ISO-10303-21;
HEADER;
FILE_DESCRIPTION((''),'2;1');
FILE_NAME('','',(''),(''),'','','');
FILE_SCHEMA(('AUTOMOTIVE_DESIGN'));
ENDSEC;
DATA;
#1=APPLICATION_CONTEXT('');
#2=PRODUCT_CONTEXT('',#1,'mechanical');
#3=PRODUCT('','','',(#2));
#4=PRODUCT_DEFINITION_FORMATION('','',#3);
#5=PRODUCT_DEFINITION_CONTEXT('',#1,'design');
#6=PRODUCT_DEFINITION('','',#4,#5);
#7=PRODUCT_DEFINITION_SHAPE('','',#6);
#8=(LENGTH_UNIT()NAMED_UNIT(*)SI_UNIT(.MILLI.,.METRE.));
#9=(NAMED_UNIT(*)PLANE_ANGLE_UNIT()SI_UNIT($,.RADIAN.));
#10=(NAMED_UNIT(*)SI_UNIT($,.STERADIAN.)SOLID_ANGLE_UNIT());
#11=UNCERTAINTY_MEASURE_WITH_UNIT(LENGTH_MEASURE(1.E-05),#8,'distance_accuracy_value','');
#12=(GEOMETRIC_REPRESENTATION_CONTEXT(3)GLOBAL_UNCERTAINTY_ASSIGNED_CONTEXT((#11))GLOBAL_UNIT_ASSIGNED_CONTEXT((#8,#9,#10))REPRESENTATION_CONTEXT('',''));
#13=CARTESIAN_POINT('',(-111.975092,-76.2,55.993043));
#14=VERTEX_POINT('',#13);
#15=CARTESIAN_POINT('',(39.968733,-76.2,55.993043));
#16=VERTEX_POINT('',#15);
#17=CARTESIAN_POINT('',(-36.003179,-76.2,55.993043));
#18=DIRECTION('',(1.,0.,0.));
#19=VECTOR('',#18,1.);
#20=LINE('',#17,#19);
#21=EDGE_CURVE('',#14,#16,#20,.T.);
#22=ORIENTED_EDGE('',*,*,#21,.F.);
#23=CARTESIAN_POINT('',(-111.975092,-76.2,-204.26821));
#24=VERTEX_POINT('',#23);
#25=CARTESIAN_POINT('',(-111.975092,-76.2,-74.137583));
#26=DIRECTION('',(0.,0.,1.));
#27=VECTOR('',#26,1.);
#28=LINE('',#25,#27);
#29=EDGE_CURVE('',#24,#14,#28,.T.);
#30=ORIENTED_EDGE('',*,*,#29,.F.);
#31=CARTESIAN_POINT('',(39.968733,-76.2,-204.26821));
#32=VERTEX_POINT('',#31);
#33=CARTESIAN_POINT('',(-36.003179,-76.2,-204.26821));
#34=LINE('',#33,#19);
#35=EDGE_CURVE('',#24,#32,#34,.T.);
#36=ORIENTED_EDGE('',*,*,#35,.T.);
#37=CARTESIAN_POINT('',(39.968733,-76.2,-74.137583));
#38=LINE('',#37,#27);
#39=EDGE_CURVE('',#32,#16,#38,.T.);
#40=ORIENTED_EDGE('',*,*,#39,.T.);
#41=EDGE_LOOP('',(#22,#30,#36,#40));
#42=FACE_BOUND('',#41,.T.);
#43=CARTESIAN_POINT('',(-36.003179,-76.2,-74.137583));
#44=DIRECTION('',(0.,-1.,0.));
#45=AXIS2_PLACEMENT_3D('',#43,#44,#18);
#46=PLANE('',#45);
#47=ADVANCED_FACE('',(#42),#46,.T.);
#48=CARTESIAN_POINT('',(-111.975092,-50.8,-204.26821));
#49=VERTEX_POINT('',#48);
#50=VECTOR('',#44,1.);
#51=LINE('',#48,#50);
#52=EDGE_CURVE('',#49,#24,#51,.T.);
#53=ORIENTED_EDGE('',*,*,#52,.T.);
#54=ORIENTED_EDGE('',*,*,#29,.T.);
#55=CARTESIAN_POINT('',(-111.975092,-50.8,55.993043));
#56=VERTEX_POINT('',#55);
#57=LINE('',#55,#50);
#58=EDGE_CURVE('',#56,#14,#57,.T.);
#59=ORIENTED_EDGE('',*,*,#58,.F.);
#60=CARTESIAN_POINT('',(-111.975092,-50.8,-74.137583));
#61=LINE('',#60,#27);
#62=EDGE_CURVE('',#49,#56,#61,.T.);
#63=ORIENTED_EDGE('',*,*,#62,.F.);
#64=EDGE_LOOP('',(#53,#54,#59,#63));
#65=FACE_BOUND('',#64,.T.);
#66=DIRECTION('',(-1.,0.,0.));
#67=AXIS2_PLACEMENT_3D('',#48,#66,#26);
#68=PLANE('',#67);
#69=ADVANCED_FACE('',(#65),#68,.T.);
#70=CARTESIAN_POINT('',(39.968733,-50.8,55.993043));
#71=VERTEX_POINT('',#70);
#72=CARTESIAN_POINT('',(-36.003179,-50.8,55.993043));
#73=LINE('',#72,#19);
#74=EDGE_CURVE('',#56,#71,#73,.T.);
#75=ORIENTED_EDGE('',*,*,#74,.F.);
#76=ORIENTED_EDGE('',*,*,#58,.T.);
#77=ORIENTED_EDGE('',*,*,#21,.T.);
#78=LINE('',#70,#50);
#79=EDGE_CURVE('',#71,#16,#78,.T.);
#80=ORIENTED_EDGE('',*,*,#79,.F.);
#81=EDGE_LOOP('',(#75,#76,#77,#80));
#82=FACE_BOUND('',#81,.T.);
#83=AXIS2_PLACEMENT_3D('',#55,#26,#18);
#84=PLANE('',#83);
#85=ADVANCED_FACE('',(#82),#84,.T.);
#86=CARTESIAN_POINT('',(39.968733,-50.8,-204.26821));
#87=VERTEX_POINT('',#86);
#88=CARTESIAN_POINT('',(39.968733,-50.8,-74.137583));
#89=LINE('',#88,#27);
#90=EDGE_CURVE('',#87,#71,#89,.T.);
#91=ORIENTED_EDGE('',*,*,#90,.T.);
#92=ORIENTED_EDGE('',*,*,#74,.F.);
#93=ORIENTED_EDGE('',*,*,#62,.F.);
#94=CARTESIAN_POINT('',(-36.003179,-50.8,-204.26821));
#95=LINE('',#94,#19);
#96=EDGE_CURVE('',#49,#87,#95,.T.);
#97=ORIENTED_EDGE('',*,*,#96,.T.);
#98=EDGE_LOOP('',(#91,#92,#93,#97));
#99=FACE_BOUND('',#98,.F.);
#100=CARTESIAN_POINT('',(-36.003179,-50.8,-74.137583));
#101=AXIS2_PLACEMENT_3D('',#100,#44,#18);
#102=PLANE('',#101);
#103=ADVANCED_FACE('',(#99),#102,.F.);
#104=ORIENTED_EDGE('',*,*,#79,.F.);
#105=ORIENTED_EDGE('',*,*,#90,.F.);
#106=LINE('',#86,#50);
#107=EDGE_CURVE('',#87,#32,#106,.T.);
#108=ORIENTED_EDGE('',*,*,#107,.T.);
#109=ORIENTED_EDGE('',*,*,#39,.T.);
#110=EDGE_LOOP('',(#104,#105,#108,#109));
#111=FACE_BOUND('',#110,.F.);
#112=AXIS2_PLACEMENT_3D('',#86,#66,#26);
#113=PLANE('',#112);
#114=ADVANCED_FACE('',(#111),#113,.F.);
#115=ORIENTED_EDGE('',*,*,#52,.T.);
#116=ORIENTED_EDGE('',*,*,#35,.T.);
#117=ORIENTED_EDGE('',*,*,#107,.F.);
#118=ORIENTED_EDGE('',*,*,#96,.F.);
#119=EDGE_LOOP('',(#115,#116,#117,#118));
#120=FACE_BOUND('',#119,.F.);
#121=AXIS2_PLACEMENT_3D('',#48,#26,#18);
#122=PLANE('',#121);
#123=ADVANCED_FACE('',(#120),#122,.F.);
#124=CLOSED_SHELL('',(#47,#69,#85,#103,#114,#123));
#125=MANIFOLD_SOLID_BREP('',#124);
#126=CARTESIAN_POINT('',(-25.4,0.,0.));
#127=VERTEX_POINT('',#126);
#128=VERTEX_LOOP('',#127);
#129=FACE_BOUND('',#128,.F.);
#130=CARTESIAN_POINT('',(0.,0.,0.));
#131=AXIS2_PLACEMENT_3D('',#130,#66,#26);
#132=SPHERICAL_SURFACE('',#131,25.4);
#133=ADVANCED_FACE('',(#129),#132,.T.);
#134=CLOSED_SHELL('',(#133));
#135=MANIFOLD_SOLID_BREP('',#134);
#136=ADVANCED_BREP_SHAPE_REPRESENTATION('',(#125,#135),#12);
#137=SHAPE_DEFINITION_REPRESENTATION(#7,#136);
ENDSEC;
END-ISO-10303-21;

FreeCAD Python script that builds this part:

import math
import FreeCAD as App
import Part
import Sketcher

V = App.Vector
Q = App.Units.Quantity


def add_polygon(sketch, points):
    """Adds a closed chain of lines whose ends are joined by coincident constraints."""
    first, n = sketch.GeometryCount, len(points)
    for a, b in zip(points, points[1:] + points[:1]):
        sketch.addGeometry(Part.LineSegment(App.Vector(*a, 0), App.Vector(*b, 0)), False)
    for i in range(n):
        sketch.addConstraint(Sketcher.Constraint("Coincident", first + i, 2, first + (i + 1) % n, 1))

doc = App.newDocument("Part")
body = doc.addObject("PartDesign::Body", "Body")

sketch1 = body.newObject("Sketcher::SketchObject", "Sketch")
sketch1.AttachmentSupport = (doc.getObject("XZ_Plane"), [""])
sketch1.MapMode = "FlatFace"
sketch1.addGeometry(Part.LineSegment(V(-25, 0, 0), V(25, 0, 0)), False)
sketch1.addGeometry(Part.ArcOfCircle(Part.Circle(V(0, 0, 0), V(0, 0, 1), 25), math.radians(0), math.radians(180)), False)
sketch1.addConstraint(Sketcher.Constraint("Coincident", 0, 1, 1, 2))
sketch1.addConstraint(Sketcher.Constraint("Coincident", 1, 1, 0, 2))
sketch1.addConstraint(Sketcher.Constraint("Horizontal", 0))
sketch1.addConstraint(Sketcher.Constraint("Coincident", 1, 3, -1, 1))
sketch1.addConstraint(Sketcher.Constraint("PointOnObject", 0, 1, -1))
sketch1.addConstraint(Sketcher.Constraint("Radius", 1, Q("1 in")))
revolution = body.newObject("PartDesign::Revolution", "Revolution")
revolution.Profile = sketch1
revolution.ReferenceAxis = (sketch1, ["H_Axis"])
revolution.Angle = 360
body2 = doc.addObject("PartDesign::Body", "Body001")

sketch2 = body2.newObject("Sketcher::SketchObject", "Sketch001")
sketch2.AttachmentSupport = (doc.getObject("XZ_Plane001"), [""])
sketch2.MapMode = "FlatFace"
sketch2.AttachmentOffset = App.Placement(V(0, 0, 2 * 25.4), App.Rotation())
add_polygon(sketch2, [(-112, 56), (-112, -204), (40, -204), (40, 56)])
sketch2.addConstraint(Sketcher.Constraint("Vertical", 0))
sketch2.addConstraint(Sketcher.Constraint("Horizontal", 1))
sketch2.addConstraint(Sketcher.Constraint("Vertical", 2))
sketch2.addConstraint(Sketcher.Constraint("Horizontal", 3))
sketch2.addConstraint(Sketcher.Constraint("DistanceX", 1, 1, 1, 2, Q("151.943825 mm")))
sketch2.addConstraint(Sketcher.Constraint("DistanceY", 0, 2, 0, 1, Q("260.261253 mm")))
sketch2.addConstraint(Sketcher.Constraint("DistanceX", 0, 2, -1, 1, Q("111.975092 mm")))
sketch2.addConstraint(Sketcher.Constraint("DistanceY", 0, 2, -1, 1, Q("204.26821 mm")))
pad1 = body2.newObject("PartDesign::Pad", "Pad")
pad1.Profile = sketch2
pad1.Length = Q("1 in")

doc.recompute()
